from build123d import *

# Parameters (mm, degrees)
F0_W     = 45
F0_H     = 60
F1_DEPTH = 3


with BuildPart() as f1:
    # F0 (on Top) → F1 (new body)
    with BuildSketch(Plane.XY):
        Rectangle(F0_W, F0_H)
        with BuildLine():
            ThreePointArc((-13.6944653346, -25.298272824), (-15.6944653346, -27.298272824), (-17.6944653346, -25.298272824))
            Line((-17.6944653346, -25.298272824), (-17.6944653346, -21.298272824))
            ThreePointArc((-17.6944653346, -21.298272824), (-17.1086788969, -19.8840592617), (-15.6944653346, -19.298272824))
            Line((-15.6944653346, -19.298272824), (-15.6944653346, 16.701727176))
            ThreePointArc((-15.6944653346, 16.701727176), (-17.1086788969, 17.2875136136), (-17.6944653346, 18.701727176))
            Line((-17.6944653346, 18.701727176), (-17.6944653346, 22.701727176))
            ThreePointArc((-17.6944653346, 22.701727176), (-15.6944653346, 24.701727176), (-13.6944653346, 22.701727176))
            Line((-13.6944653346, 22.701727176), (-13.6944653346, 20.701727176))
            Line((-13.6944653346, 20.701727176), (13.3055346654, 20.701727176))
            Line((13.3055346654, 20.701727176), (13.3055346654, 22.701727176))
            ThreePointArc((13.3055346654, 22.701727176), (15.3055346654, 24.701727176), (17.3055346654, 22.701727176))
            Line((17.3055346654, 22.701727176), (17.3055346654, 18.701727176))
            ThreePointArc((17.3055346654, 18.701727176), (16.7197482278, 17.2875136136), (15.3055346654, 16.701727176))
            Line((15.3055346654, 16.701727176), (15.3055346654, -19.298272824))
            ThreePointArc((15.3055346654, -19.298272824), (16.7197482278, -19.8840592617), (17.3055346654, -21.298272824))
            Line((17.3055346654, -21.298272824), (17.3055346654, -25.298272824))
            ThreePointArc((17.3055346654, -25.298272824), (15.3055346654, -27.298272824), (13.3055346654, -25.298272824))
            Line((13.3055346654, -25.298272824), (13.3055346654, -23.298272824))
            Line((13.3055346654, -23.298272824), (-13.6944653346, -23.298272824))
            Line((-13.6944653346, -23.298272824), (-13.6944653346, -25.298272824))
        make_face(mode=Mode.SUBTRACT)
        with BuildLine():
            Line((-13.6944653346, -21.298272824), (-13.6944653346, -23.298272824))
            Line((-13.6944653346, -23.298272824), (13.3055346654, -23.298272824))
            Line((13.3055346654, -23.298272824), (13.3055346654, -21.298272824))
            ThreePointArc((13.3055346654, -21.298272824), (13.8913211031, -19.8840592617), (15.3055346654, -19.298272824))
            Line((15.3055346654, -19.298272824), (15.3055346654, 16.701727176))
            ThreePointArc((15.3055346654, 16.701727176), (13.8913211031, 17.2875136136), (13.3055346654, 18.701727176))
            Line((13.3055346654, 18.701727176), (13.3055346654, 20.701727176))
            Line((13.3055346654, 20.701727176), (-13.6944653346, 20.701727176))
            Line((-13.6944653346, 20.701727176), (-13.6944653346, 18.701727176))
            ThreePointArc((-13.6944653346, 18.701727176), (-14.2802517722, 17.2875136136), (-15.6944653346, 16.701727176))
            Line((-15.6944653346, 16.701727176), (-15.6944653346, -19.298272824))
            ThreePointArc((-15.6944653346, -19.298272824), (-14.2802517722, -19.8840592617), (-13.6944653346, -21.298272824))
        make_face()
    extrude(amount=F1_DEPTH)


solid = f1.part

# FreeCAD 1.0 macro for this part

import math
import FreeCAD as App
import Part
import Sketcher
Q = App.Units.Quantity


def add_polygon(sketch, points):
    """Adds a closed chain of lines whose ends are joined by coincident constraints."""
    first, n = sketch.GeometryCount, len(points)
    for a, b in zip(points, points[1:] + points[:1]):
        sketch.addGeometry(Part.LineSegment(App.Vector(*a, 0), App.Vector(*b, 0)), False)
    for i in range(n):
        sketch.addConstraint(Sketcher.Constraint("Coincident", first + i, 2, first + (i + 1) % n, 1))

doc = App.newDocument("Part")
body = doc.addObject("PartDesign::Body", "Body")

# Sketch on XY plane
sketch1 = body.newObject("Sketcher::SketchObject", "Sketch")
sketch1.AttachmentSupport = (doc.getObject("XY_Plane"), [""])
sketch1.MapMode = "FlatFace"
add_polygon(sketch1, [(-22.5, 30), (-22.5, -30), (22.5, -30), (22.5, 30)])  # lines 0-3
sketch1.addGeometry(Part.ArcOfCircle(Part.Circle(App.Vector(-15.7, -25.3, 0), App.Vector(0, 0, 1), 2), math.radians(180), math.radians(360)), False)  # 4
sketch1.addGeometry(Part.LineSegment(App.Vector(-17.7, -25.3, 0), App.Vector(-17.7, -21.3, 0)), False)  # 5
sketch1.addGeometry(Part.ArcOfCircle(Part.Circle(App.Vector(-15.7, -21.3, 0), App.Vector(0, 0, 1), 2), math.radians(90), math.radians(180)), False)  # 6
sketch1.addGeometry(Part.ArcOfCircle(Part.Circle(App.Vector(-15.7, -21.3, 0), App.Vector(0, 0, 1), 2), math.radians(0), math.radians(90)), False)  # 7
sketch1.addGeometry(Part.LineSegment(App.Vector(-13.7, -21.3, 0), App.Vector(-13.7, -25.3, 0)), False)  # 8
sketch1.addGeometry(Part.LineSegment(App.Vector(13.3, -25.3, 0), App.Vector(13.3, -21.3, 0)), False)  # 9
sketch1.addGeometry(Part.ArcOfCircle(Part.Circle(App.Vector(15.3, -21.3, 0), App.Vector(0, 0, 1), 2), math.radians(90), math.radians(180)), False)  # 10
sketch1.addGeometry(Part.ArcOfCircle(Part.Circle(App.Vector(15.3, -21.3, 0), App.Vector(0, 0, 1), 2), math.radians(0), math.radians(90)), False)  # 11
sketch1.addGeometry(Part.LineSegment(App.Vector(17.3, -21.3, 0), App.Vector(17.3, -25.3, 0)), False)  # 12
sketch1.addGeometry(Part.ArcOfCircle(Part.Circle(App.Vector(15.3, -25.3, 0), App.Vector(0, 0, 1), 2), math.radians(180), math.radians(360)), False)  # 13
sketch1.addGeometry(Part.ArcOfCircle(Part.Circle(App.Vector(15.3, 18.7, 0), App.Vector(0, 0, 1), 2), math.radians(-90), math.radians(0)), False)  # 14
sketch1.addGeometry(Part.ArcOfCircle(Part.Circle(App.Vector(15.3, 18.7, 0), App.Vector(0, 0, 1), 2), math.radians(180), math.radians(270)), False)  # 15
sketch1.addGeometry(Part.LineSegment(App.Vector(13.3, 18.7, 0), App.Vector(13.3, 22.7, 0)), False)  # 16
sketch1.addGeometry(Part.ArcOfCircle(Part.Circle(App.Vector(15.3, 22.7, 0), App.Vector(0, 0, 1), 2), math.radians(0), math.radians(180)), False)  # 17
sketch1.addGeometry(Part.LineSegment(App.Vector(17.3, 22.7, 0), App.Vector(17.3, 18.7, 0)), False)  # 18
sketch1.addGeometry(Part.LineSegment(App.Vector(-13.7, 22.7, 0), App.Vector(-13.7, 18.7, 0)), False)  # 19
sketch1.addGeometry(Part.ArcOfCircle(Part.Circle(App.Vector(-15.7, 18.7, 0), App.Vector(0, 0, 1), 2), math.radians(-90), math.radians(0)), False)  # 20
sketch1.addGeometry(Part.ArcOfCircle(Part.Circle(App.Vector(-15.7, 18.7, 0), App.Vector(0, 0, 1), 2), math.radians(180), math.radians(270)), False)  # 21
sketch1.addGeometry(Part.LineSegment(App.Vector(-17.7, 18.7, 0), App.Vector(-17.7, 22.7, 0)), False)  # 22
sketch1.addGeometry(Part.ArcOfCircle(Part.Circle(App.Vector(-15.7, 22.7, 0), App.Vector(0, 0, 1), 2), math.radians(0), math.radians(180)), False)  # 23
sketch1.addConstraint(Sketcher.Constraint("Tangent", 4, 1, 5, 1))
sketch1.addConstraint(Sketcher.Constraint("Tangent", 5, 2, 6, 2))
sketch1.addConstraint(Sketcher.Constraint("Tangent", 6, 1, 7, 2))
sketch1.addConstraint(Sketcher.Constraint("Tangent", 7, 1, 8, 1))
sketch1.addConstraint(Sketcher.Constraint("Tangent", 8, 2, 4, 2))
sketch1.addConstraint(Sketcher.Constraint("Tangent", 9, 2, 10, 2))
sketch1.addConstraint(Sketcher.Constraint("Tangent", 10, 1, 11, 2))
sketch1.addConstraint(Sketcher.Constraint("Tangent", 11, 1, 12, 1))
sketch1.addConstraint(Sketcher.Constraint("Tangent", 12, 2, 13, 2))
sketch1.addConstraint(Sketcher.Constraint("Tangent", 13, 1, 9, 1))
sketch1.addConstraint(Sketcher.Constraint("Tangent", 14, 1, 15, 2))
sketch1.addConstraint(Sketcher.Constraint("Tangent", 15, 1, 16, 1))
sketch1.addConstraint(Sketcher.Constraint("Tangent", 16, 2, 17, 2))
sketch1.addConstraint(Sketcher.Constraint("Tangent", 17, 1, 18, 1))
sketch1.addConstraint(Sketcher.Constraint("Tangent", 18, 2, 14, 2))
sketch1.addConstraint(Sketcher.Constraint("Tangent", 19, 2, 20, 2))
sketch1.addConstraint(Sketcher.Constraint("Tangent", 20, 1, 21, 2))
sketch1.addConstraint(Sketcher.Constraint("Tangent", 21, 1, 22, 1))
sketch1.addConstraint(Sketcher.Constraint("Tangent", 22, 2, 23, 2))
sketch1.addConstraint(Sketcher.Constraint("Tangent", 23, 1, 19, 1))
sketch1.addConstraint(Sketcher.Constraint("Vertical", 0))
sketch1.addConstraint(Sketcher.Constraint("Horizontal", 1))
sketch1.addConstraint(Sketcher.Constraint("Vertical", 2))
sketch1.addConstraint(Sketcher.Constraint("Horizontal", 3))
sketch1.addConstraint(Sketcher.Constraint("Vertical", 5))
sketch1.addConstraint(Sketcher.Constraint("Vertical", 8))
sketch1.addConstraint(Sketcher.Constraint("Vertical", 9))
sketch1.addConstraint(Sketcher.Constraint("Vertical", 12))
sketch1.addConstraint(Sketcher.Constraint("Vertical", 16))
sketch1.addConstraint(Sketcher.Constraint("Vertical", 18))
sketch1.addConstraint(Sketcher.Constraint("Vertical", 19))
sketch1.addConstraint(Sketcher.Constraint("Vertical", 22))
sketch1.addConstraint(Sketcher.Constraint("Equal", 4, 6))
sketch1.addConstraint(Sketcher.Constraint("Equal", 7, 10))
sketch1.addConstraint(Sketcher.Constraint("Equal", 10, 11))
sketch1.addConstraint(Sketcher.Constraint("Equal", 13, 14))
sketch1.addConstraint(Sketcher.Constraint("Equal", 14, 15))
sketch1.addConstraint(Sketcher.Constraint("Equal", 17, 20))
sketch1.addConstraint(Sketcher.Constraint("Equal", 20, 21))
sketch1.addConstraint(Sketcher.Constraint("Symmetric", 0, 2, 2, 2, -1, 1))
sketch1.addConstraint(Sketcher.Constraint("Horizontal", 7, 3, 10, 3))
sketch1.addConstraint(Sketcher.Constraint("Horizontal", 4, 3, 13, 3))
sketch1.addConstraint(Sketcher.Constraint("Horizontal", 15, 3, 20, 3))
sketch1.addConstraint(Sketcher.Constraint("Horizontal", 17, 3, 23, 3))
sketch1.addConstraint(Sketcher.Constraint("Vertical", 13, 3, 14, 3))
sketch1.addConstraint(Sketcher.Constraint("Vertical", 7, 3, 20, 3))
sketch1.addConstraint(Sketcher.Constraint("Vertical", 23, 3, 6, 1))
sketch1.addConstraint(Sketcher.Constraint("Vertical", 17, 3, 10, 1))
sketch1.addConstraint(Sketcher.Constraint("Vertical", 10, 1, 14, 1))
sketch1.addConstraint(Sketcher.Constraint("Vertical", 6, 1, 20, 1))
sketch1.addConstraint(Sketcher.Constraint("Equal", 12, 16))
sketch1.addConstraint(Sketcher.Constraint("Radius", 4, Q("2 mm")))
sketch1.addConstraint(Sketcher.Constraint("DistanceX", 1, 1, 1, 2, Q("45 mm")))
sketch1.addConstraint(Sketcher.Constraint("DistanceY", 0, 2, 0, 1, Q("60 mm")))
sketch1.addConstraint(Sketcher.Constraint("DistanceY", 5, 1, 5, 2, Q("4 mm")))
sketch1.addConstraint(Sketcher.Constraint("DistanceX", 6, 3, 10, 3, Q("31 mm")))
sketch1.addConstraint(Sketcher.Constraint("DistanceY", 10, 3, 14, 3, Q("40 mm")))
sketch1.addConstraint(Sketcher.Constraint("DistanceX", 4, 3, -1, 1, Q("15.694465 mm")))
sketch1.addConstraint(Sketcher.Constraint("DistanceY", 4, 3, -1, 1, Q("25.298273 mm")))
pad1 = body.newObject("PartDesign::Pad", "Pad")
pad1.Profile = sketch1
pad1.Length = 3

doc.recompute()
